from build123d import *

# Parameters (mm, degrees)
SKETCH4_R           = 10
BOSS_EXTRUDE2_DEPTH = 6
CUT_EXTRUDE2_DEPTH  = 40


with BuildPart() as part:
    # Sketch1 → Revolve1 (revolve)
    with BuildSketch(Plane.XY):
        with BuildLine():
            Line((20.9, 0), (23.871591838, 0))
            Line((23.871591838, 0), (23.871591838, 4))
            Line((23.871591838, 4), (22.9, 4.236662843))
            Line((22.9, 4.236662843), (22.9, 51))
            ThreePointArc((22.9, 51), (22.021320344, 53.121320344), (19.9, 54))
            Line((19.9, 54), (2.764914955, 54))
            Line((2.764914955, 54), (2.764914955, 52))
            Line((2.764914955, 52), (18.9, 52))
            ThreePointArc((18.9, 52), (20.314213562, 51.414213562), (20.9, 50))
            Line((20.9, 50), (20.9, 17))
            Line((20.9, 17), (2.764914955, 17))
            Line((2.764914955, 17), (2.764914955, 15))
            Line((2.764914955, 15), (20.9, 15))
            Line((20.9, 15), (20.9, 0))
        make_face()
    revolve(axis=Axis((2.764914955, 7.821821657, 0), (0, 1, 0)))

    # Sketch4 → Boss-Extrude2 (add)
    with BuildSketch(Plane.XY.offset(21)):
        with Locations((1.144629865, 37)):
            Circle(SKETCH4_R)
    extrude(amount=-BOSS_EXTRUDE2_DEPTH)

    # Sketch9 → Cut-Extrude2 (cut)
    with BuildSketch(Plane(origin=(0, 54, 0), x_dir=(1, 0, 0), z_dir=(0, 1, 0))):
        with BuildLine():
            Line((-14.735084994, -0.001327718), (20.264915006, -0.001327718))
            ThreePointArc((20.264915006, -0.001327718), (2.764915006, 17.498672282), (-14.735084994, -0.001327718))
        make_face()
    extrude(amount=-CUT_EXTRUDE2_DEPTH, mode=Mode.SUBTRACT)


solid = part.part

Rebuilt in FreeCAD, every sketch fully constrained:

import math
import FreeCAD as App
import Part
import Sketcher
Q = App.Units.Quantity

doc = App.newDocument("Part")
params = doc.addObject("Spreadsheet::Sheet", "Params")
for row, (alias, value) in enumerate([
    ("sketch1_radius", "3 mm"),
    ("sketch1_radius2", "2 mm"),
    ("sketch1_height", "4 mm"),
    ("sketch1_height2", "2 mm"),
    ("sketch1_height3", "33 mm"),
    ("revolution_angle", "360 deg"),
    ("sketch2_diameter", "20 mm"),
    ("pad1_length", "6 mm"),
    ("sketch3_radius", "17.5 mm"),
    ("pocket1_length", "40 mm"),
], start=1):
    params.set(f"A{row}", alias)
    params.set(f"B{row}", "=" + value)
    params.setAlias(f"B{row}", alias)

body = doc.addObject("PartDesign::Body", "Body")

sketch1 = doc.addObject("Sketcher::SketchObject", "Sketch")
body.addObject(sketch1)
sketch1.AttachmentSupport = (doc.XY_Plane, [""])
sketch1.MapMode = "FlatFace"
sketch1.addGeometry([
    Part.LineSegment(App.Vector(20.9, 0, 0), App.Vector(23.9, 0, 0)),
    Part.LineSegment(App.Vector(23.9, 0, 0), App.Vector(23.9, 4, 0)),
    Part.LineSegment(App.Vector(23.9, 4, 0), App.Vector(22.9, 4.2, 0)),
    Part.LineSegment(App.Vector(22.9, 4.2, 0), App.Vector(22.9, 51, 0)),
    Part.ArcOfCircle(Part.Circle(App.Vector(19.9, 51, 0), App.Vector(0, 0, 1), 3), math.radians(0), math.radians(90)),
    Part.LineSegment(App.Vector(19.9, 54, 0), App.Vector(2.8, 54, 0)),
    Part.LineSegment(App.Vector(2.8, 54, 0), App.Vector(2.8, 52, 0)),
    Part.LineSegment(App.Vector(2.8, 52, 0), App.Vector(18.9, 52, 0)),
    Part.ArcOfCircle(Part.Circle(App.Vector(18.9, 50, 0), App.Vector(0, 0, 1), 2), math.radians(0), math.radians(90)),
    Part.LineSegment(App.Vector(20.9, 50, 0), App.Vector(20.9, 17, 0)),
    Part.LineSegment(App.Vector(20.9, 17, 0), App.Vector(2.8, 17, 0)),
    Part.LineSegment(App.Vector(2.8, 17, 0), App.Vector(2.8, 15, 0)),
    Part.LineSegment(App.Vector(2.8, 15, 0), App.Vector(20.9, 15, 0)),
    Part.LineSegment(App.Vector(20.9, 15, 0), App.Vector(20.9, 0, 0)),
], False)
sketch1.addGeometry(Part.LineSegment(App.Vector(2.8, 0, 0), App.Vector(2.8, 54, 0)), True)
sketch1.addConstraint([
    Sketcher.Constraint("Coincident", 0, 2, 1, 1),
    Sketcher.Constraint("Coincident", 1, 2, 2, 1),
    Sketcher.Constraint("Coincident", 2, 2, 3, 1),
    Sketcher.Constraint("Tangent", 3, 2, 4, 1),
    Sketcher.Constraint("Tangent", 4, 2, 5, 1),
    Sketcher.Constraint("Coincident", 5, 2, 6, 1),
    Sketcher.Constraint("Coincident", 6, 2, 7, 1),
    Sketcher.Constraint("Tangent", 7, 2, 8, 2),
    Sketcher.Constraint("Tangent", 8, 1, 9, 1),
    Sketcher.Constraint("Coincident", 9, 2, 10, 1),
    Sketcher.Constraint("Coincident", 10, 2, 11, 1),
    Sketcher.Constraint("Coincident", 11, 2, 12, 1),
    Sketcher.Constraint("Coincident", 12, 2, 13, 1),
    Sketcher.Constraint("Coincident", 13, 2, 0, 1),
    Sketcher.Constraint("Horizontal", 0),
    Sketcher.Constraint("Vertical", 1),
    Sketcher.Constraint("Vertical", 3),
    Sketcher.Constraint("Horizontal", 5),
    Sketcher.Constraint("Vertical", 6),
    Sketcher.Constraint("Horizontal", 7),
    Sketcher.Constraint("Vertical", 9),
    Sketcher.Constraint("Horizontal", 10),
    Sketcher.Constraint("Vertical", 11),
    Sketcher.Constraint("Horizontal", 12),
    Sketcher.Constraint("Vertical", 13),
    Sketcher.Constraint("Vertical", 14),
    Sketcher.Constraint("Coincident", 14, 2, 5, 2),
    Sketcher.Constraint("PointOnObject", 0, 2, -1),
    Sketcher.Constraint("PointOnObject", 14, 1, -1),
    Sketcher.Constraint("Vertical", 6, 2, 10, 2),
    Sketcher.Constraint("Vertical", 9, 2, 12, 2),
    Sketcher.Constraint("Equal", 6, 11),
    Sketcher.Constraint("Radius", 4, Q("3 mm")),
    Sketcher.Constraint("Radius", 8, Q("2 mm")),
    Sketcher.Constraint("DistanceY", 1, 1, 1, 2, Q("4 mm")),
    Sketcher.Constraint("DistanceY", 6, 2, 6, 1, Q("2 mm")),
    Sketcher.Constraint("DistanceY", 9, 2, 9, 1, Q("33 mm")),
    Sketcher.Constraint("DistanceY", 13, 2, 13, 1, Q("15 mm")),
    Sketcher.Constraint("Distance", 2, Q("1 mm")),
    Sketcher.Constraint("DistanceX", 8, 3, 4, 3, Q("1 mm")),
    Sketcher.Constraint("DistanceX", -1, 1, 4, 3, Q("19.9 mm")),
    Sketcher.Constraint("DistanceX", 0, 1, 0, 2, Q("2.971592 mm")),
    Sketcher.Constraint("DistanceX", 5, 2, 5, 1, Q("17.135085 mm")),
])
sketch1.setExpression("Constraints[32]", "Params.sketch1_radius")
sketch1.setExpression("Constraints[33]", "Params.sketch1_radius2")
sketch1.setExpression("Constraints[34]", "Params.sketch1_height")
sketch1.setExpression("Constraints[35]", "Params.sketch1_height2")
sketch1.setExpression("Constraints[36]", "Params.sketch1_height3")
revolution = doc.addObject("PartDesign::Revolution", "Revolution")
body.addObject(revolution)
revolution.Profile = sketch1
revolution.ReferenceAxis = (sketch1, ["Axis0"])
revolution.setExpression("Angle", "Params.revolution_angle")

sketch2 = doc.addObject("Sketcher::SketchObject", "Sketch001")
body.addObject(sketch2)
sketch2.AttachmentSupport = (doc.XY_Plane, [""])
sketch2.MapMode = "FlatFace"
sketch2.AttachmentOffset = App.Placement(App.Vector(0, 0, 21), App.Rotation())
sketch2.addGeometry(Part.Circle(App.Vector(1, 37, 0), App.Vector(0, 0, 1), 10), False)
sketch2.addConstraint([
    Sketcher.Constraint("Diameter", 0, Q("20 mm")),
    Sketcher.Constraint("DistanceY", -1, 1, 0, 3, Q("37 mm")),
    Sketcher.Constraint("DistanceX", -1, 1, 0, 3, Q("1.14463 mm")),
])
sketch2.setExpression("Constraints[0]", "Params.sketch2_diameter")
pad1 = doc.addObject("PartDesign::Pad", "Pad")
body.addObject(pad1)
pad1.Profile = sketch2
pad1.setExpression("Length", "Params.pad1_length")
pad1.Reversed = True

sketch3 = doc.addObject("Sketcher::SketchObject", "Sketch002")
body.addObject(sketch3)
sketch3.AttachmentSupport = (doc.XZ_Plane, [""])
sketch3.MapMode = "FlatFace"
sketch3.AttachmentOffset = App.Placement(App.Vector(0, 0, -54), App.Rotation())
sketch3.addGeometry([
    Part.LineSegment(App.Vector(-15, 0, 0), App.Vector(20, 0, 0)),
    Part.ArcOfCircle(Part.Circle(App.Vector(3, 0, 0), App.Vector(0, 0, 1), 18), math.radians(180), math.radians(360)),
], False)
sketch3.addConstraint([
    Sketcher.Constraint("Coincident", 0, 1, 1, 1),
    Sketcher.Constraint("Coincident", 1, 2, 0, 2),
    Sketcher.Constraint("Horizontal", 0),
    Sketcher.Constraint("Horizontal", 1, 3, 0, 1),
    Sketcher.Constraint("Radius", 1, Q("17.5 mm")),
    Sketcher.Constraint("DistanceX", -1, 1, 1, 3, Q("2.764915 mm")),
    Sketcher.Constraint("DistanceY", -1, 1, 1, 3, Q("0.001328 mm")),
])
sketch3.setExpression("Constraints[4]", "Params.sketch3_radius")
pocket1 = doc.addObject("PartDesign::Pocket", "Pocket")
body.addObject(pocket1)
pocket1.Profile = sketch3
pocket1.setExpression("Length", "Params.pocket1_length")
pocket1.Reversed = True

doc.recompute()
